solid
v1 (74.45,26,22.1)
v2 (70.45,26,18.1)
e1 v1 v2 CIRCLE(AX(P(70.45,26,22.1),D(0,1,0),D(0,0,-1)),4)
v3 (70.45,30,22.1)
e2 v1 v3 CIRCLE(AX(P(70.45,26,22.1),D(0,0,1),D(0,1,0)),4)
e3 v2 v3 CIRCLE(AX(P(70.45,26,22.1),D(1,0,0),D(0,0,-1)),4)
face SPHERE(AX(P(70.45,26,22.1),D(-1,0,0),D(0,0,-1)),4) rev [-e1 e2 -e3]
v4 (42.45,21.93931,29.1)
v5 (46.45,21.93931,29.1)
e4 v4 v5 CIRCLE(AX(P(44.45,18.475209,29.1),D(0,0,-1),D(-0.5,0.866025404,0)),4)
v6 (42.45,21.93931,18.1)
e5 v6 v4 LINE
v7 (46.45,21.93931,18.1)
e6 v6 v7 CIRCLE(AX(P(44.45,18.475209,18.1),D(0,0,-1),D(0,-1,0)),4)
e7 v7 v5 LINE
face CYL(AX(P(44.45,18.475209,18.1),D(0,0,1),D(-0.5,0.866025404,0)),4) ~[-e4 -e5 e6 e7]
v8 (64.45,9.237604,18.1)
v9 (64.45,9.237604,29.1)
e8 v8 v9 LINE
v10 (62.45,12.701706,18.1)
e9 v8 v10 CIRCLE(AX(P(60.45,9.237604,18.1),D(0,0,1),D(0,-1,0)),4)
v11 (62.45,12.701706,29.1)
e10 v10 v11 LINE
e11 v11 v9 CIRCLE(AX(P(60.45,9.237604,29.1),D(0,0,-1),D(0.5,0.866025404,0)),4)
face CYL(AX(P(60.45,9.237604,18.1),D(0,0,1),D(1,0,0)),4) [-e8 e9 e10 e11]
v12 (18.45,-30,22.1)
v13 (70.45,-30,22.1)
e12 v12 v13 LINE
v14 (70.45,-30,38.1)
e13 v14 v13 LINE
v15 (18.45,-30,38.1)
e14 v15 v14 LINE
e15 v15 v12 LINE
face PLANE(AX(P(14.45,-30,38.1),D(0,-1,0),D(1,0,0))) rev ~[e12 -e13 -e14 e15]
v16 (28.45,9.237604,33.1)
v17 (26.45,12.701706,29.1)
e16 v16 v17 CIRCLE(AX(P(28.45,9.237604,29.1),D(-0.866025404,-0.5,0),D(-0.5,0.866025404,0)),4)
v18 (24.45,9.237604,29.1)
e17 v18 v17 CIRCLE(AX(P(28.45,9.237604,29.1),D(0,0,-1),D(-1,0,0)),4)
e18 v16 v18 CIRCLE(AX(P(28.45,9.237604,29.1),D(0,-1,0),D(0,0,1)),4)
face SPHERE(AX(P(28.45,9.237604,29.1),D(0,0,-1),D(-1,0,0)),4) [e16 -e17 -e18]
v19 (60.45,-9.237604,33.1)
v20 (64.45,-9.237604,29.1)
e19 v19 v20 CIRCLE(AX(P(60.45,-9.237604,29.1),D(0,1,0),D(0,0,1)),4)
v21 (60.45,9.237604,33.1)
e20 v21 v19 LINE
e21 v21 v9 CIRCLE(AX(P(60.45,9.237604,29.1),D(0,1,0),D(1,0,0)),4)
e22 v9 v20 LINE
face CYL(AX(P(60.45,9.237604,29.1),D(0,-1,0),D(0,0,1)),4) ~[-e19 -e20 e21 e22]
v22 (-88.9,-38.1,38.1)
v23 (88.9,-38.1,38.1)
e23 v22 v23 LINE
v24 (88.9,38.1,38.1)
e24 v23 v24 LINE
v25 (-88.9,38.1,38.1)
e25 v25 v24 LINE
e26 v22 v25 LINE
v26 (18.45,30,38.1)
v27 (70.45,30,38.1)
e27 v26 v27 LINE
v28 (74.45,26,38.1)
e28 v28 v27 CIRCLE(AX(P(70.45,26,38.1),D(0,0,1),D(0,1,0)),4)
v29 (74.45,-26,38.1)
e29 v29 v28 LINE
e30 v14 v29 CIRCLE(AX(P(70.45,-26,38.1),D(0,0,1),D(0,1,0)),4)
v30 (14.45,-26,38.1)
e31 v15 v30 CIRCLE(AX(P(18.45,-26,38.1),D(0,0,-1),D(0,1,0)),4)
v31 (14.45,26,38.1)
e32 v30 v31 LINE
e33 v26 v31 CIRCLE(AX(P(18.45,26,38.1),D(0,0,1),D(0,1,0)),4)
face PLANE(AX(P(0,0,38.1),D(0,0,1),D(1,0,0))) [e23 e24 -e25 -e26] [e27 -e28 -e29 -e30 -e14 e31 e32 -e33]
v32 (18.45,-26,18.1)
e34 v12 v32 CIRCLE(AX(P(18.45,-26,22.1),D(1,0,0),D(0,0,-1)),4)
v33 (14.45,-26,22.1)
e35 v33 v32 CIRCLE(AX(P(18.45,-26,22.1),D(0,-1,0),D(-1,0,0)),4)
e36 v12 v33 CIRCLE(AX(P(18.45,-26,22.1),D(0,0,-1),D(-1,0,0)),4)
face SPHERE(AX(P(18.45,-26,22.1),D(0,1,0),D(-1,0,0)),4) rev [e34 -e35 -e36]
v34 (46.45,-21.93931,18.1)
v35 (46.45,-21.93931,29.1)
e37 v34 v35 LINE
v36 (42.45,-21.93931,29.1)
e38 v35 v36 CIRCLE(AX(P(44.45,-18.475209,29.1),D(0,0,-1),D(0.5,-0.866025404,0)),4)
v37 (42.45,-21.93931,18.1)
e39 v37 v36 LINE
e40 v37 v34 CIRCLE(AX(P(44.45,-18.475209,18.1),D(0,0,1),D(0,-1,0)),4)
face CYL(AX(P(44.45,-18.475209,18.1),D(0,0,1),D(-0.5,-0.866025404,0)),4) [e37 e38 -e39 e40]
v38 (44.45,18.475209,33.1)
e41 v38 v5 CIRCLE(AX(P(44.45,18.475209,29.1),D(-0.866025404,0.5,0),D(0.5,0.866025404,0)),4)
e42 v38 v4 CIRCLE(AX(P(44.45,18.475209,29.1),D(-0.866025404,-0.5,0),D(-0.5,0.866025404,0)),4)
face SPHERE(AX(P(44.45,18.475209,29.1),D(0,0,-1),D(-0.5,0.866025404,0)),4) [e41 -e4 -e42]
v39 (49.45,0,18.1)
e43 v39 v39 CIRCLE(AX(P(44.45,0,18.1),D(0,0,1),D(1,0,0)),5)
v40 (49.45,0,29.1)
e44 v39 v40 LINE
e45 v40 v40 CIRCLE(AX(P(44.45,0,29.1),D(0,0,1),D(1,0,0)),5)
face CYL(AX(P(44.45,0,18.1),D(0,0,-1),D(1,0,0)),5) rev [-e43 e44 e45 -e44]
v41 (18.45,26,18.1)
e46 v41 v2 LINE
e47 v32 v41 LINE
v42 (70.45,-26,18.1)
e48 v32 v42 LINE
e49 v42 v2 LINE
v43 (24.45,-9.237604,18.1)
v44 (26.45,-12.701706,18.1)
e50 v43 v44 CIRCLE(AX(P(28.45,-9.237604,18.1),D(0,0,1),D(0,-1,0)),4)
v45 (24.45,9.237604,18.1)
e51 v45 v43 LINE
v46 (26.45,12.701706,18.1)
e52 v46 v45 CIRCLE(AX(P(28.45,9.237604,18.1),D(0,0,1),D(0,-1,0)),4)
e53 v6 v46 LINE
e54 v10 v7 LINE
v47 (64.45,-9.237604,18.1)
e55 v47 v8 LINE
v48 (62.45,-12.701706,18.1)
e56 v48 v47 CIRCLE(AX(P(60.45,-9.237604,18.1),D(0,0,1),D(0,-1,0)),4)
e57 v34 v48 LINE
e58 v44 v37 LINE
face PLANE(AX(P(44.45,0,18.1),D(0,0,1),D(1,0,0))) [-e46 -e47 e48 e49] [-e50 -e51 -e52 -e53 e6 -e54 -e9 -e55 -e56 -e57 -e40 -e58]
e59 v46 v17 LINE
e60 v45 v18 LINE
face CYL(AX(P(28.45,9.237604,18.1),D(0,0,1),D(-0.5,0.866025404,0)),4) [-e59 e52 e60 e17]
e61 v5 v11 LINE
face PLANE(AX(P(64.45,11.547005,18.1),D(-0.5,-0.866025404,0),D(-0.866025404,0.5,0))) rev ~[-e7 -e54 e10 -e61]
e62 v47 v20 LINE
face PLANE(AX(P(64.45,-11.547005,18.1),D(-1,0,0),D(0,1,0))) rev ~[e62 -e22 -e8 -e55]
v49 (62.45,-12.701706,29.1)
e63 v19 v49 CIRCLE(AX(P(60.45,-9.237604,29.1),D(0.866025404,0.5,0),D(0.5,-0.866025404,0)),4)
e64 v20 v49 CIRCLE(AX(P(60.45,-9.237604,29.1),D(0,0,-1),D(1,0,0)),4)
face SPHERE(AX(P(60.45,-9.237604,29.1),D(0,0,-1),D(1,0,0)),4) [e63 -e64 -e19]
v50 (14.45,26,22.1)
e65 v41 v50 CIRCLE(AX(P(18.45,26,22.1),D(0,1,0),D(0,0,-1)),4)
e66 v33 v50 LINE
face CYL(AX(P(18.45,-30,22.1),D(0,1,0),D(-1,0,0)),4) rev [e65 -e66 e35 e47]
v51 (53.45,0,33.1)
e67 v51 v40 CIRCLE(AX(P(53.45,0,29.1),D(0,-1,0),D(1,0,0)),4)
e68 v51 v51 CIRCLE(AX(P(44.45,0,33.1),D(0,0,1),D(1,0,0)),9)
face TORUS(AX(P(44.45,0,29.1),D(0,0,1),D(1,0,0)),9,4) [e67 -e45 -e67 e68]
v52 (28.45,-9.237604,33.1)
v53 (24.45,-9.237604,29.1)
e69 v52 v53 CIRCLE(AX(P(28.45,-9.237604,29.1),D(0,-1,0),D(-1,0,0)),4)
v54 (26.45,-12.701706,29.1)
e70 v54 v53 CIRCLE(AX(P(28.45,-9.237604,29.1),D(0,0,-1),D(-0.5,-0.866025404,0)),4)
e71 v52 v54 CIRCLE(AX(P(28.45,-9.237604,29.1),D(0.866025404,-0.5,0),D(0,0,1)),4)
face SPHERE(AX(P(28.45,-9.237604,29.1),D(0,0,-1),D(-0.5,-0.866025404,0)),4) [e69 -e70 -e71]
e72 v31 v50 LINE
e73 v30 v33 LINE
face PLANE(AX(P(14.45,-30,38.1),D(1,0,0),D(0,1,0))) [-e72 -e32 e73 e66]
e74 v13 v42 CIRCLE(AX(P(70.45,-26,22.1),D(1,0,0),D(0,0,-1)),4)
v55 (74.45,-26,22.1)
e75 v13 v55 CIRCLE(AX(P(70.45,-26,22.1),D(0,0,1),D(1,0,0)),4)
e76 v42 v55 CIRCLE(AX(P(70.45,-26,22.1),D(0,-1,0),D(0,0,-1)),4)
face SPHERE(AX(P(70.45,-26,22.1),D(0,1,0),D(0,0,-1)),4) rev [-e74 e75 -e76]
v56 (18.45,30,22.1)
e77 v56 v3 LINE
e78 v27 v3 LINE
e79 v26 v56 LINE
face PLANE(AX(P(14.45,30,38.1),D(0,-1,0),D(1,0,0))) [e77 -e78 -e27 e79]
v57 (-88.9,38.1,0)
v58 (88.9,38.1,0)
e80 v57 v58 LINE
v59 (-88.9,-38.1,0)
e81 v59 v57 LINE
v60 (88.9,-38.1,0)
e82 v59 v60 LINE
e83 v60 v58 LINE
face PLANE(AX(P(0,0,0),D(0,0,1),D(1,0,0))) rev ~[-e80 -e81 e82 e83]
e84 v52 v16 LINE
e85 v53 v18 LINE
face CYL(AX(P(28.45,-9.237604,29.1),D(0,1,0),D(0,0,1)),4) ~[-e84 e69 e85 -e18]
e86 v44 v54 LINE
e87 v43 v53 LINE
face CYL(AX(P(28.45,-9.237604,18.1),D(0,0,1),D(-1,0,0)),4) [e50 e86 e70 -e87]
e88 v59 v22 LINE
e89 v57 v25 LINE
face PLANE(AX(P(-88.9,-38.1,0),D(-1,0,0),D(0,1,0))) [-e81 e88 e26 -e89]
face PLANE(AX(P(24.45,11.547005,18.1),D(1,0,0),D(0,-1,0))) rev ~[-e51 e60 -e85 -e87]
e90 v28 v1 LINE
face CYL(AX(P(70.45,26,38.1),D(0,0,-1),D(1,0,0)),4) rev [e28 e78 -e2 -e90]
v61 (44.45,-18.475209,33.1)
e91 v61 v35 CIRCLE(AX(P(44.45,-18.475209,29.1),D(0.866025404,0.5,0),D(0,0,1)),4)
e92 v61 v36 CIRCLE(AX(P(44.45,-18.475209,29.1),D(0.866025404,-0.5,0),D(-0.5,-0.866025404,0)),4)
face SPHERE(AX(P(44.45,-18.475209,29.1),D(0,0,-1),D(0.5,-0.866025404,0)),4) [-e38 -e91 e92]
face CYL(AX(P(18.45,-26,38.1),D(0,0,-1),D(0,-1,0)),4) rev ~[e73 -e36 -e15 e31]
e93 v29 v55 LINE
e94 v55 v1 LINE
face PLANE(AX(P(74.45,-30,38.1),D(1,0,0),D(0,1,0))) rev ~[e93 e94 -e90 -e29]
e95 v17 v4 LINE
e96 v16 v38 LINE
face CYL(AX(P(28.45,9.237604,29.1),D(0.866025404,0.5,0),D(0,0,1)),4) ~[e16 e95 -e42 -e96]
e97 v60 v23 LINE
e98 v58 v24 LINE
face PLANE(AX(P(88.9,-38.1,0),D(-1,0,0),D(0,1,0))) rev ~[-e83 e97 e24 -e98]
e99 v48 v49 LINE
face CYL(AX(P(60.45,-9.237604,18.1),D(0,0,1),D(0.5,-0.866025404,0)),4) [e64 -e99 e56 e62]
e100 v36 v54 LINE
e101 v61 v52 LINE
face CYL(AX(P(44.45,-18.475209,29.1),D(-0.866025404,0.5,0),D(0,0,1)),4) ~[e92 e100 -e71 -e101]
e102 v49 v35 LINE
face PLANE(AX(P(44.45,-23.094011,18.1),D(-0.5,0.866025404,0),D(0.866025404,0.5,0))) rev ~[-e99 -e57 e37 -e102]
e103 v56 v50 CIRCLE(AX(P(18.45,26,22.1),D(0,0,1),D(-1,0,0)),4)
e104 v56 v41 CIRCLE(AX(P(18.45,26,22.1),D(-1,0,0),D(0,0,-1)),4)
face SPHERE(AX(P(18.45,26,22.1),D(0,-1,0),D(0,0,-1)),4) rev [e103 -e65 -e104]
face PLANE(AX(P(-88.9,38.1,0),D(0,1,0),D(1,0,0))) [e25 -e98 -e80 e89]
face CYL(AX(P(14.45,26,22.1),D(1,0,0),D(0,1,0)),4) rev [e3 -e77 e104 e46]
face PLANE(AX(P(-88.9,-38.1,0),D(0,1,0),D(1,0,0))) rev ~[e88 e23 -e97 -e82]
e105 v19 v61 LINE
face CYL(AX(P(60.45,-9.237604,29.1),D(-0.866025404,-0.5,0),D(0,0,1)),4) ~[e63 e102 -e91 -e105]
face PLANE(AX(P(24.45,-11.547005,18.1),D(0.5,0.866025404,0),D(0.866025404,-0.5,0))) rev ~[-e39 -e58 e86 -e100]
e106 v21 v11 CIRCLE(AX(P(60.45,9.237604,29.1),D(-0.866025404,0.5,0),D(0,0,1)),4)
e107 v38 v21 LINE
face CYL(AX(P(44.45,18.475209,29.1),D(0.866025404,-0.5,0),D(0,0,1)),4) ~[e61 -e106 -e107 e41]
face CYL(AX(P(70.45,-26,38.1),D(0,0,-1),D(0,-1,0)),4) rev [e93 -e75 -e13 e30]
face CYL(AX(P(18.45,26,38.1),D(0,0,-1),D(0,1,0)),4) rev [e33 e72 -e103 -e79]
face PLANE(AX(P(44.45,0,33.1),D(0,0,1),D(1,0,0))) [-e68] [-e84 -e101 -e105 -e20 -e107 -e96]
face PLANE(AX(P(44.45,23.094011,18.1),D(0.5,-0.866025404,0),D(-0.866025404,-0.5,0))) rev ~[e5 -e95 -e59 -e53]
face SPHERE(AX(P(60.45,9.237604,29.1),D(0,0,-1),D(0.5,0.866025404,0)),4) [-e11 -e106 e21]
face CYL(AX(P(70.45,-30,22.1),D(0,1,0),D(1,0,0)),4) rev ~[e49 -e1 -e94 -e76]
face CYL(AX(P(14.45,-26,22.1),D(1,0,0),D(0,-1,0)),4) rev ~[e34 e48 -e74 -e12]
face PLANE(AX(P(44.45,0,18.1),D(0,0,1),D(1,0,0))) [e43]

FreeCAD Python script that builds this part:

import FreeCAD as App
import Part
import Sketcher

V = App.Vector
Q = App.Units.Quantity


def edges_at(feature, points):
    """Names of the edges that pass closest to the given points."""
    edges = feature.Shape.Edges
    near = lambda p: min(range(len(edges)), key=lambda i: edges[i].distToShape(Part.Vertex(*p))[0])
    return sorted({f"Edge{near(p) + 1}" for p in points})


def add_polygon(sketch, points):
    """Adds a closed chain of lines whose ends are joined by coincident constraints."""
    first, n = sketch.GeometryCount, len(points)
    for a, b in zip(points, points[1:] + points[:1]):
        sketch.addGeometry(Part.LineSegment(App.Vector(*a, 0), App.Vector(*b, 0)), False)
    for i in range(n):
        sketch.addConstraint(Sketcher.Constraint("Coincident", first + i, 2, first + (i + 1) % n, 1))

doc = App.newDocument("Part")
body = doc.addObject("PartDesign::Body", "Body")

# Sketch on XY plane
sketch1 = doc.addObject("Sketcher::SketchObject", "Sketch")
body.addObject(sketch1)
sketch1.AttachmentSupport = (doc.XY_Plane, [""])
sketch1.MapMode = "FlatFace"
add_polygon(sketch1, [(-89, 38), (-89, -38), (89, -38), (89, 38)])  # lines 0-3
sketch1.addConstraint([
    Sketcher.Constraint("Vertical", 0),
    Sketcher.Constraint("Horizontal", 1),
    Sketcher.Constraint("Vertical", 2),
    Sketcher.Constraint("Horizontal", 3),
    Sketcher.Constraint("Symmetric", 0, 2, 2, 2, -1, 1),
    Sketcher.Constraint("DistanceX", 1, 1, 1, 2, Q("177.8 mm")),
    Sketcher.Constraint("DistanceY", 0, 2, 0, 1, Q("76.2 mm")),
])
pad1 = doc.addObject("PartDesign::Pad", "Pad")
body.addObject(pad1)
pad1.Profile = sketch1
pad1.Length = 38.1

# Sketch on XY plane
sketch2 = doc.addObject("Sketcher::SketchObject", "Sketch001")
body.addObject(sketch2)
sketch2.AttachmentSupport = (doc.XY_Plane, [""])
sketch2.MapMode = "FlatFace"
sketch2.AttachmentOffset = App.Placement(V(0, 0, 38.1), App.Rotation())
add_polygon(sketch2, [(14, 30), (14, -30), (74, -30), (74, 30)])  # lines 0-3
sketch2.addConstraint([
    Sketcher.Constraint("Vertical", 0),
    Sketcher.Constraint("Horizontal", 1),
    Sketcher.Constraint("Vertical", 2),
    Sketcher.Constraint("Horizontal", 3),
    Sketcher.Constraint("Equal", 3, 0),
    Sketcher.Constraint("DistanceX", 1, 1, 1, 2, Q("60 mm")),
    Sketcher.Constraint("DistanceY", 0, 2, -1, 1, Q("30 mm")),
    Sketcher.Constraint("DistanceX", -1, 1, 0, 2, Q("14.45 mm")),
])
pocket1 = doc.addObject("PartDesign::Pocket", "Pocket")
body.addObject(pocket1)
pocket1.Profile = sketch2
pocket1.Length = 20

# Sketch on XY plane
sketch3 = doc.addObject("Sketcher::SketchObject", "Sketch002")
body.addObject(sketch3)
sketch3.AttachmentSupport = (doc.XY_Plane, [""])
sketch3.MapMode = "FlatFace"
sketch3.AttachmentOffset = App.Placement(V(0, 0, 18.1), App.Rotation())
add_polygon(sketch3, [(44, 23), (24, 12), (24, -12), (44, -23), (64, -12), (64, 12)])  # lines 0-5
sketch3.addGeometry(Part.Circle(V(44, 0, 0), V(0, 0, 1), 5), False)  # 6
sketch3.addConstraint([
    Sketcher.Constraint("Vertical", 1),
    Sketcher.Constraint("Vertical", 4),
    Sketcher.Constraint("Symmetric", 2, 2, 5, 2, -1),
    Sketcher.Constraint("PointOnObject", 6, 3, -1),
    Sketcher.Constraint("Parallel", 0, 3),
    Sketcher.Constraint("Parallel", 2, 5),
    Sketcher.Constraint("Horizontal", 1, 2, 3, 2),
    Sketcher.Constraint("Horizontal", 0, 2, 4, 2),
    Sketcher.Constraint("Vertical", 6, 3, 2, 2),
    Sketcher.Constraint("Diameter", 6, Q("10 mm")),
    Sketcher.Constraint("Angle", 0, Q("-150 deg")),
    Sketcher.Constraint("DistanceX", 0, 2, 6, 3, Q("20 mm")),
    Sketcher.Constraint("DistanceX", -1, 1, 6, 3, Q("44.45 mm")),
    Sketcher.Constraint("DistanceY", 1, 2, 1, 1, Q("23.094011 mm")),
])
pad2 = doc.addObject("PartDesign::Pad", "Pad001")
body.addObject(pad2)
pad2.Profile = sketch3
pad2.Length = 15
doc.recompute()

fillet = doc.addObject("PartDesign::Fillet", "Fillet")
body.addObject(fillet)
fillet.Base = (pad2, edges_at(pad2, [
    (14.45, 0, 18.1),
    (14.45, -30, 28.1),
    (44.45, 30, 18.1),
    (14.45, 30, 28.1),
    (74.45, 0, 18.1),
    (74.45, 30, 28.1),
    (44.45, -30, 18.1),
    (74.45, -30, 28.1),
]))
fillet.Radius = 4
doc.recompute()

fillet2 = doc.addObject("PartDesign::Fillet", "Fillet001")
body.addObject(fillet2)
fillet2.Base = (fillet, edges_at(fillet, [
    (64.45, 11.547, 25.6),
    (44.45, 23.094, 25.6),
    (24.45, 11.547, 25.6),
    (24.45, -11.547, 25.6),
    (44.45, -23.094, 25.6),
    (64.45, -11.547, 25.6),
]))
fillet2.Radius = 4
doc.recompute()

fillet3 = doc.addObject("PartDesign::Fillet", "Fillet002")
body.addObject(fillet3)
fillet3.Base = (fillet2, edges_at(fillet2, [(39.45, 0, 33.1)]))
fillet3.Radius = 4
doc.recompute()

fillet4 = doc.addObject("PartDesign::Fillet", "Fillet003")
body.addObject(fillet4)
fillet4.Base = (fillet3, edges_at(fillet3, [
    (44.45, 22.475, 33.1),
    (24.986, 11.238, 33.1),
    (24.986, -11.238, 33.1),
    (44.45, -22.475, 33.1),
    (63.914, -11.238, 33.1),
    (63.914, 11.238, 33.1),
    (54.45, 17.321, 33.1),
    (64.45, 0, 33.1),
    (34.45, 17.321, 33.1),
    (24.45, 0, 33.1),
    (34.45, -17.321, 33.1),
    (54.45, -17.321, 33.1),
]))
fillet4.Radius = 4

doc.recompute()
